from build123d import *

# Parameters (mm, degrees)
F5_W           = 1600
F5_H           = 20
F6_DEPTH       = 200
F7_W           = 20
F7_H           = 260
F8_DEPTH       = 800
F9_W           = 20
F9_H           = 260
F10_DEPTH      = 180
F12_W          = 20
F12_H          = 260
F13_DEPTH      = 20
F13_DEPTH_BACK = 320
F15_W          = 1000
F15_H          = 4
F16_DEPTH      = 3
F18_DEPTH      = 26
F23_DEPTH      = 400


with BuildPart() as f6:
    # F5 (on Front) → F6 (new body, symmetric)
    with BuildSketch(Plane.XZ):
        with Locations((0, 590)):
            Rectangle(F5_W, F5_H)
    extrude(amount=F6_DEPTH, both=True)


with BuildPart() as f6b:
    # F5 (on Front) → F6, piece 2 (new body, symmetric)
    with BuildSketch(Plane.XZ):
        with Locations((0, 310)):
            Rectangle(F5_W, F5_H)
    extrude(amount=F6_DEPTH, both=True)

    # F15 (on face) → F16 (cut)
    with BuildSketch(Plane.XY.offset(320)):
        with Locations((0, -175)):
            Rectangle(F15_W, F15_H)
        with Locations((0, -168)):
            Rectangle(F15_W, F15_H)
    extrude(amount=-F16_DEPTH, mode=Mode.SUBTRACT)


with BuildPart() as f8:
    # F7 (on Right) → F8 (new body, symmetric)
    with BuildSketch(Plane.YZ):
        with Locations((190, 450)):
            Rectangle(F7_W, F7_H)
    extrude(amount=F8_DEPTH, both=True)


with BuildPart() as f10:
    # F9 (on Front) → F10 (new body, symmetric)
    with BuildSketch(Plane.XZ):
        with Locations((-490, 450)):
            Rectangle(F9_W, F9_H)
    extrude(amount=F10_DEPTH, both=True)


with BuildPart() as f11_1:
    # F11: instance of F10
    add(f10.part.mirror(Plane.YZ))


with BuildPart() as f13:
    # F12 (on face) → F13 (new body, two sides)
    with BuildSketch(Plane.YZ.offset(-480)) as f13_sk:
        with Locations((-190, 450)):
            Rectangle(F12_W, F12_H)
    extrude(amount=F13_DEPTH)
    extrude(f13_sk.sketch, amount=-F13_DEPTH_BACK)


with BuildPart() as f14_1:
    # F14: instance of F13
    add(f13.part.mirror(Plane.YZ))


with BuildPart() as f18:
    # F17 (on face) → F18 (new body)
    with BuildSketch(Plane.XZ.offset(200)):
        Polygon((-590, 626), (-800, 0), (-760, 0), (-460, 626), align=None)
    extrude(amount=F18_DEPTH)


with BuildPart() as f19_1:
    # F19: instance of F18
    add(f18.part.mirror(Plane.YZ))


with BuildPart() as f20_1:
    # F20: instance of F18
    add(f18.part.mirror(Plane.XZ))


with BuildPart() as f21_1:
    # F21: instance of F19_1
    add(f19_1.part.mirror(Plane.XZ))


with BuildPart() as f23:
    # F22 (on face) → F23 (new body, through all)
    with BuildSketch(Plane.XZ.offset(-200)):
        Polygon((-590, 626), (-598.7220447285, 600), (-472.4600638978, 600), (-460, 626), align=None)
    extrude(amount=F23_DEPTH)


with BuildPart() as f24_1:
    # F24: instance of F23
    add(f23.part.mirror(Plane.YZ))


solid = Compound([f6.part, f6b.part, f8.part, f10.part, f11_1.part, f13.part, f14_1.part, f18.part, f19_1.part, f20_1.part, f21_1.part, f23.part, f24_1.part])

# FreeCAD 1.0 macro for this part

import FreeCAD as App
import Part
import Sketcher
Q = App.Units.Quantity


def add_polygon(sketch, points):
    """Adds a closed chain of lines whose ends are joined by coincident constraints."""
    first, n = sketch.GeometryCount, len(points)
    for a, b in zip(points, points[1:] + points[:1]):
        sketch.addGeometry(Part.LineSegment(App.Vector(*a, 0), App.Vector(*b, 0)), False)
    for i in range(n):
        sketch.addConstraint(Sketcher.Constraint("Coincident", first + i, 2, first + (i + 1) % n, 1))

doc = App.newDocument("Part")
body = doc.addObject("PartDesign::Body", "Body")

sketch1 = body.newObject("Sketcher::SketchObject", "Sketch")
sketch1.AttachmentSupport = (doc.getObject("XZ_Plane"), [""])
sketch1.MapMode = "FlatFace"
add_polygon(sketch1, [(-800, 600), (-800, 580), (800, 580), (800, 600)])
sketch1.addConstraint([
    Sketcher.Constraint("Vertical", 0),
    Sketcher.Constraint("Horizontal", 1),
    Sketcher.Constraint("Vertical", 2),
    Sketcher.Constraint("Horizontal", 3),
    Sketcher.Constraint("DistanceX", 1, 1, 1, 2, Q("1600 mm")),
    Sketcher.Constraint("DistanceY", 0, 2, 0, 1, Q("20 mm")),
    Sketcher.Constraint("DistanceX", 0, 2, -1, 1, Q("800 mm")),
    Sketcher.Constraint("DistanceY", -1, 1, 0, 2, Q("580 mm")),
])
pad1 = body.newObject("PartDesign::Pad", "Pad")
pad1.Profile = sketch1
pad1.Length = 400
pad1.Midplane = True
body2 = doc.addObject("PartDesign::Body", "Body001")

sketch2 = body2.newObject("Sketcher::SketchObject", "Sketch001")
sketch2.AttachmentSupport = (doc.getObject("XZ_Plane001"), [""])
sketch2.MapMode = "FlatFace"
add_polygon(sketch2, [(-800, 320), (-800, 300), (800, 300), (800, 320)])
sketch2.addConstraint([
    Sketcher.Constraint("Vertical", 0),
    Sketcher.Constraint("Horizontal", 1),
    Sketcher.Constraint("Vertical", 2),
    Sketcher.Constraint("Horizontal", 3),
    Sketcher.Constraint("DistanceX", 1, 1, 1, 2, Q("1600 mm")),
    Sketcher.Constraint("DistanceY", 0, 2, 0, 1, Q("20 mm")),
    Sketcher.Constraint("DistanceX", 0, 2, -1, 1, Q("800 mm")),
    Sketcher.Constraint("DistanceY", -1, 1, 0, 2, Q("300 mm")),
])
pad2 = body2.newObject("PartDesign::Pad", "Pad001")
pad2.Profile = sketch2
pad2.Length = 400
pad2.Midplane = True

sketch3 = body2.newObject("Sketcher::SketchObject", "Sketch002")
sketch3.AttachmentSupport = (doc.getObject("XY_Plane001"), [""])
sketch3.MapMode = "FlatFace"
sketch3.AttachmentOffset = App.Placement(App.Vector(0, 0, 320), App.Rotation())
add_polygon(sketch3, [(-500, -173), (-500, -177), (500, -177), (500, -173)])
add_polygon(sketch3, [(-500, -166), (-500, -170), (500, -170), (500, -166)])
sketch3.addConstraint([
    Sketcher.Constraint("Vertical", 0),
    Sketcher.Constraint("Horizontal", 1),
    Sketcher.Constraint("Vertical", 2),
    Sketcher.Constraint("Horizontal", 3),
    Sketcher.Constraint("Vertical", 4),
    Sketcher.Constraint("Horizontal", 5),
    Sketcher.Constraint("Vertical", 6),
    Sketcher.Constraint("Horizontal", 7),
    Sketcher.Constraint("Vertical", 3, 2, 4, 2),
    Sketcher.Constraint("Vertical", 2, 2, 5, 2),
    Sketcher.Constraint("Equal", 2, 4),
    Sketcher.Constraint("DistanceX", 1, 1, 1, 2, Q("1000 mm")),
    Sketcher.Constraint("DistanceY", 0, 2, 0, 1, Q("4 mm")),
    Sketcher.Constraint("DistanceX", 0, 2, -1, 1, Q("500 mm")),
    Sketcher.Constraint("DistanceY", 0, 2, -1, 1, Q("177 mm")),
    Sketcher.Constraint("DistanceY", 4, 2, -1, 1, Q("170 mm")),
])
pocket1 = body2.newObject("PartDesign::Pocket", "Pocket")
pocket1.Profile = sketch3
pocket1.Length = 3
body3 = doc.addObject("PartDesign::Body", "Body002")

sketch4 = body3.newObject("Sketcher::SketchObject", "Sketch003")
sketch4.AttachmentSupport = (doc.getObject("YZ_Plane002"), [""])
sketch4.MapMode = "FlatFace"
add_polygon(sketch4, [(180, 580), (180, 320), (200, 320), (200, 580)])
sketch4.addConstraint([
    Sketcher.Constraint("Vertical", 0),
    Sketcher.Constraint("Horizontal", 1),
    Sketcher.Constraint("Vertical", 2),
    Sketcher.Constraint("Horizontal", 3),
    Sketcher.Constraint("DistanceX", 1, 1, 1, 2, Q("20 mm")),
    Sketcher.Constraint("DistanceY", 0, 2, 0, 1, Q("260 mm")),
    Sketcher.Constraint("DistanceX", -1, 1, 0, 2, Q("180 mm")),
    Sketcher.Constraint("DistanceY", -1, 1, 0, 2, Q("320 mm")),
])
pad3 = body3.newObject("PartDesign::Pad", "Pad002")
pad3.Profile = sketch4
pad3.Length = 1600
pad3.Midplane = True
body4 = doc.addObject("PartDesign::Body", "Body003")

sketch5 = body4.newObject("Sketcher::SketchObject", "Sketch004")
sketch5.AttachmentSupport = (doc.getObject("XZ_Plane003"), [""])
sketch5.MapMode = "FlatFace"
add_polygon(sketch5, [(-500, 580), (-500, 320), (-480, 320), (-480, 580)])
sketch5.addConstraint([
    Sketcher.Constraint("Vertical", 0),
    Sketcher.Constraint("Horizontal", 1),
    Sketcher.Constraint("Vertical", 2),
    Sketcher.Constraint("Horizontal", 3),
    Sketcher.Constraint("DistanceX", 1, 1, 1, 2, Q("20 mm")),
    Sketcher.Constraint("DistanceY", 0, 2, 0, 1, Q("260 mm")),
    Sketcher.Constraint("DistanceX", 0, 2, -1, 1, Q("500 mm")),
    Sketcher.Constraint("DistanceY", -1, 1, 0, 2, Q("320 mm")),
])
pad4 = body4.newObject("PartDesign::Pad", "Pad003")
pad4.Profile = sketch5
pad4.Length = 360
pad4.Midplane = True
body5 = doc.addObject("PartDesign::Body", "Body004")
doc.recompute()

mirroring = doc.addObject("Part::Mirroring", "Mirroring")
mirroring.Source = body4
mirroring.Base = App.Vector(0, 0, 0)
mirroring.Normal = App.Vector(1, 0, 0)
body5.BaseFeature = mirroring
doc.recompute()
body6 = doc.addObject("PartDesign::Body", "Body005")

sketch6 = body6.newObject("Sketcher::SketchObject", "Sketch005")
sketch6.AttachmentSupport = (doc.getObject("YZ_Plane005"), [""])
sketch6.MapMode = "FlatFace"
sketch6.AttachmentOffset = App.Placement(App.Vector(0, 0, -480), App.Rotation())
add_polygon(sketch6, [(-200, 580), (-200, 320), (-180, 320), (-180, 580)])
sketch6.addConstraint([
    Sketcher.Constraint("Vertical", 0),
    Sketcher.Constraint("Horizontal", 1),
    Sketcher.Constraint("Vertical", 2),
    Sketcher.Constraint("Horizontal", 3),
    Sketcher.Constraint("DistanceX", 1, 1, 1, 2, Q("20 mm")),
    Sketcher.Constraint("DistanceY", 0, 2, 0, 1, Q("260 mm")),
    Sketcher.Constraint("DistanceX", 0, 2, -1, 1, Q("200 mm")),
    Sketcher.Constraint("DistanceY", -1, 1, 0, 2, Q("320 mm")),
])
pad5 = body6.newObject("PartDesign::Pad", "Pad004")
pad5.Profile = sketch6
pad5.Type = "TwoLengths"
pad5.Length = 20
pad5.Length2 = 320
body7 = doc.addObject("PartDesign::Body", "Body006")
doc.recompute()

mirroring2 = doc.addObject("Part::Mirroring", "Mirroring001")
mirroring2.Source = body6
mirroring2.Base = App.Vector(0, 0, 0)
mirroring2.Normal = App.Vector(1, 0, 0)
body7.BaseFeature = mirroring2
doc.recompute()
body8 = doc.addObject("PartDesign::Body", "Body007")

sketch7 = body8.newObject("Sketcher::SketchObject", "Sketch006")
sketch7.AttachmentSupport = (doc.getObject("XZ_Plane007"), [""])
sketch7.MapMode = "FlatFace"
sketch7.AttachmentOffset = App.Placement(App.Vector(0, 0, 200), App.Rotation())
add_polygon(sketch7, [(-590, 626), (-800, 0), (-760, 0), (-460, 626)])
sketch7.addConstraint([
    Sketcher.Constraint("Horizontal", 1),
    Sketcher.Constraint("Horizontal", 3),
    Sketcher.Constraint("PointOnObject", 0, 2, -1),
    Sketcher.Constraint("DistanceX", 1, 1, 1, 2, Q("40 mm")),
    Sketcher.Constraint("DistanceX", 3, 2, 3, 1, Q("130 mm")),
    Sketcher.Constraint("DistanceX", 0, 2, -1, 1, Q("800 mm")),
    Sketcher.Constraint("DistanceX", 2, 2, -1, 1, Q("460 mm")),
    Sketcher.Constraint("DistanceY", -1, 1, 2, 2, Q("626 mm")),
])
pad6 = body8.newObject("PartDesign::Pad", "Pad005")
pad6.Profile = sketch7
pad6.Length = 26
body9 = doc.addObject("PartDesign::Body", "Body008")
doc.recompute()

mirroring3 = doc.addObject("Part::Mirroring", "Mirroring002")
mirroring3.Source = body8
mirroring3.Base = App.Vector(0, 0, 0)
mirroring3.Normal = App.Vector(1, 0, 0)
body9.BaseFeature = mirroring3
doc.recompute()
body10 = doc.addObject("PartDesign::Body", "Body009")
doc.recompute()

mirroring4 = doc.addObject("Part::Mirroring", "Mirroring003")
mirroring4.Source = body8
mirroring4.Base = App.Vector(0, 0, 0)
mirroring4.Normal = App.Vector(0, -1, 0)
body10.BaseFeature = mirroring4
doc.recompute()
body11 = doc.addObject("PartDesign::Body", "Body010")
doc.recompute()

mirroring5 = doc.addObject("Part::Mirroring", "Mirroring004")
mirroring5.Source = body9
mirroring5.Base = App.Vector(0, 0, 0)
mirroring5.Normal = App.Vector(0, -1, 0)
body11.BaseFeature = mirroring5
doc.recompute()
body12 = doc.addObject("PartDesign::Body", "Body011")

sketch8 = body12.newObject("Sketcher::SketchObject", "Sketch007")
sketch8.AttachmentSupport = (doc.getObject("XZ_Plane011"), [""])
sketch8.MapMode = "FlatFace"
sketch8.AttachmentOffset = App.Placement(App.Vector(0, 0, -200), App.Rotation())
add_polygon(sketch8, [(-590, 626), (-599, 600), (-472, 600), (-460, 626)])
sketch8.addConstraint([
    Sketcher.Constraint("Horizontal", 1),
    Sketcher.Constraint("Horizontal", 3),
    Sketcher.Constraint("DistanceX", 3, 2, 3, 1, Q("130 mm")),
    Sketcher.Constraint("DistanceY", -1, 1, 0, 2, Q("600 mm")),
    Sketcher.Constraint("DistanceX", 2, 2, -1, 1, Q("460 mm")),
    Sketcher.Constraint("DistanceY", -1, 1, 2, 2, Q("626 mm")),
    Sketcher.Constraint("DistanceX", 1, 1, 1, 2, Q("126.261981 mm")),
    Sketcher.Constraint("Distance", 0, Q("27.423969 mm")),
])
pad7 = body12.newObject("PartDesign::Pad", "Pad006")
pad7.Profile = sketch8
pad7.Length = 400
body13 = doc.addObject("PartDesign::Body", "Body012")
doc.recompute()

mirroring6 = doc.addObject("Part::Mirroring", "Mirroring005")
mirroring6.Source = body12
mirroring6.Base = App.Vector(0, 0, 0)
mirroring6.Normal = App.Vector(1, 0, 0)
body13.BaseFeature = mirroring6
doc.recompute()
mirroring.Visibility = False
mirroring2.Visibility = False
mirroring3.Visibility = False
mirroring4.Visibility = False
mirroring5.Visibility = False
mirroring6.Visibility = False

doc.recompute()
